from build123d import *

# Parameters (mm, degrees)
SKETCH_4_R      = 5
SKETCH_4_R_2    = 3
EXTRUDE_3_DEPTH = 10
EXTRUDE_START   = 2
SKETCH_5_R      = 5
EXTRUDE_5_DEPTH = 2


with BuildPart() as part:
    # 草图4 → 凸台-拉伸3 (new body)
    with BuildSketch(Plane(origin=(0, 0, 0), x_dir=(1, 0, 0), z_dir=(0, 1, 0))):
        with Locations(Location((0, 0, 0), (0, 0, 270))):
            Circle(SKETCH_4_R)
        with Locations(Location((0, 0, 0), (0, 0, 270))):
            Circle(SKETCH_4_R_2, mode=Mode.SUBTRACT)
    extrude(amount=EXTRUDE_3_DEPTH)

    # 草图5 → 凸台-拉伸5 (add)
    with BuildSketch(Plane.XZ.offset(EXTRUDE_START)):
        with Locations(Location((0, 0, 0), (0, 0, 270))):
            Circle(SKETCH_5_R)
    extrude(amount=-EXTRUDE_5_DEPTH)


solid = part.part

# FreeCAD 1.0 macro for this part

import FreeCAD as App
import Part
import Sketcher

V = App.Vector

doc = App.newDocument("Part")
params = doc.addObject("Spreadsheet::Sheet", "Params")
for row, (alias, value) in enumerate([
    ("sketch1_diameter", "10 mm"),
    ("sketch1_diameter2", "6 mm"),
    ("pad1_length", "10 mm"),
    ("sketch2_diameter", "10 mm"),
    ("pad2_length", "2 mm"),
], start=1):
    params.set(f"A{row}", alias)
    params.set(f"B{row}", "=" + value)
    params.setAlias(f"B{row}", alias)

body = doc.addObject("PartDesign::Body", "Body")

# Sketch on XZ plane
sketch1 = doc.addObject("Sketcher::SketchObject", "Sketch")
body.addObject(sketch1)
sketch1.AttachmentSupport = (doc.XZ_Plane, [""])
sketch1.MapMode = "FlatFace"
sketch1.addGeometry([
    Part.Circle(V(0, 0, 0), V(0, 0, 1), 5),
    Part.Circle(V(0, 0, 0), V(0, 0, 1), 3),
], False)
sketch1.addConstraint([
    Sketcher.Constraint("Coincident", 0, 3, -1, 1),
    Sketcher.Constraint("Coincident", 1, 3, -1, 1),
    Sketcher.Constraint("Diameter", 0, 10.0),
    Sketcher.Constraint("Diameter", 1, 6.0),
])
sketch1.setExpression("Constraints[2]", "Params.sketch1_diameter")
sketch1.setExpression("Constraints[3]", "Params.sketch1_diameter2")
pad1 = doc.addObject("PartDesign::Pad", "Pad")
body.addObject(pad1)
pad1.Profile = sketch1
pad1.setExpression("Length", "Params.pad1_length")
pad1.Reversed = True

# Sketch on XZ plane
sketch2 = doc.addObject("Sketcher::SketchObject", "Sketch001")
body.addObject(sketch2)
sketch2.AttachmentSupport = (doc.XZ_Plane, [""])
sketch2.MapMode = "FlatFace"
sketch2.AttachmentOffset = App.Placement(V(0, 0, 2), App.Rotation())
sketch2.addGeometry(Part.Circle(V(0, 0, 0), V(0, 0, 1), 5), False)
sketch2.addConstraint([
    Sketcher.Constraint("Coincident", 0, 3, -1, 1),
    Sketcher.Constraint("Diameter", 0, 10.0),
])
sketch2.setExpression("Constraints[1]", "Params.sketch2_diameter")
pad2 = doc.addObject("PartDesign::Pad", "Pad001")
body.addObject(pad2)
pad2.Profile = sketch2
pad2.setExpression("Length", "Params.pad2_length")
pad2.Reversed = True

doc.recompute()
